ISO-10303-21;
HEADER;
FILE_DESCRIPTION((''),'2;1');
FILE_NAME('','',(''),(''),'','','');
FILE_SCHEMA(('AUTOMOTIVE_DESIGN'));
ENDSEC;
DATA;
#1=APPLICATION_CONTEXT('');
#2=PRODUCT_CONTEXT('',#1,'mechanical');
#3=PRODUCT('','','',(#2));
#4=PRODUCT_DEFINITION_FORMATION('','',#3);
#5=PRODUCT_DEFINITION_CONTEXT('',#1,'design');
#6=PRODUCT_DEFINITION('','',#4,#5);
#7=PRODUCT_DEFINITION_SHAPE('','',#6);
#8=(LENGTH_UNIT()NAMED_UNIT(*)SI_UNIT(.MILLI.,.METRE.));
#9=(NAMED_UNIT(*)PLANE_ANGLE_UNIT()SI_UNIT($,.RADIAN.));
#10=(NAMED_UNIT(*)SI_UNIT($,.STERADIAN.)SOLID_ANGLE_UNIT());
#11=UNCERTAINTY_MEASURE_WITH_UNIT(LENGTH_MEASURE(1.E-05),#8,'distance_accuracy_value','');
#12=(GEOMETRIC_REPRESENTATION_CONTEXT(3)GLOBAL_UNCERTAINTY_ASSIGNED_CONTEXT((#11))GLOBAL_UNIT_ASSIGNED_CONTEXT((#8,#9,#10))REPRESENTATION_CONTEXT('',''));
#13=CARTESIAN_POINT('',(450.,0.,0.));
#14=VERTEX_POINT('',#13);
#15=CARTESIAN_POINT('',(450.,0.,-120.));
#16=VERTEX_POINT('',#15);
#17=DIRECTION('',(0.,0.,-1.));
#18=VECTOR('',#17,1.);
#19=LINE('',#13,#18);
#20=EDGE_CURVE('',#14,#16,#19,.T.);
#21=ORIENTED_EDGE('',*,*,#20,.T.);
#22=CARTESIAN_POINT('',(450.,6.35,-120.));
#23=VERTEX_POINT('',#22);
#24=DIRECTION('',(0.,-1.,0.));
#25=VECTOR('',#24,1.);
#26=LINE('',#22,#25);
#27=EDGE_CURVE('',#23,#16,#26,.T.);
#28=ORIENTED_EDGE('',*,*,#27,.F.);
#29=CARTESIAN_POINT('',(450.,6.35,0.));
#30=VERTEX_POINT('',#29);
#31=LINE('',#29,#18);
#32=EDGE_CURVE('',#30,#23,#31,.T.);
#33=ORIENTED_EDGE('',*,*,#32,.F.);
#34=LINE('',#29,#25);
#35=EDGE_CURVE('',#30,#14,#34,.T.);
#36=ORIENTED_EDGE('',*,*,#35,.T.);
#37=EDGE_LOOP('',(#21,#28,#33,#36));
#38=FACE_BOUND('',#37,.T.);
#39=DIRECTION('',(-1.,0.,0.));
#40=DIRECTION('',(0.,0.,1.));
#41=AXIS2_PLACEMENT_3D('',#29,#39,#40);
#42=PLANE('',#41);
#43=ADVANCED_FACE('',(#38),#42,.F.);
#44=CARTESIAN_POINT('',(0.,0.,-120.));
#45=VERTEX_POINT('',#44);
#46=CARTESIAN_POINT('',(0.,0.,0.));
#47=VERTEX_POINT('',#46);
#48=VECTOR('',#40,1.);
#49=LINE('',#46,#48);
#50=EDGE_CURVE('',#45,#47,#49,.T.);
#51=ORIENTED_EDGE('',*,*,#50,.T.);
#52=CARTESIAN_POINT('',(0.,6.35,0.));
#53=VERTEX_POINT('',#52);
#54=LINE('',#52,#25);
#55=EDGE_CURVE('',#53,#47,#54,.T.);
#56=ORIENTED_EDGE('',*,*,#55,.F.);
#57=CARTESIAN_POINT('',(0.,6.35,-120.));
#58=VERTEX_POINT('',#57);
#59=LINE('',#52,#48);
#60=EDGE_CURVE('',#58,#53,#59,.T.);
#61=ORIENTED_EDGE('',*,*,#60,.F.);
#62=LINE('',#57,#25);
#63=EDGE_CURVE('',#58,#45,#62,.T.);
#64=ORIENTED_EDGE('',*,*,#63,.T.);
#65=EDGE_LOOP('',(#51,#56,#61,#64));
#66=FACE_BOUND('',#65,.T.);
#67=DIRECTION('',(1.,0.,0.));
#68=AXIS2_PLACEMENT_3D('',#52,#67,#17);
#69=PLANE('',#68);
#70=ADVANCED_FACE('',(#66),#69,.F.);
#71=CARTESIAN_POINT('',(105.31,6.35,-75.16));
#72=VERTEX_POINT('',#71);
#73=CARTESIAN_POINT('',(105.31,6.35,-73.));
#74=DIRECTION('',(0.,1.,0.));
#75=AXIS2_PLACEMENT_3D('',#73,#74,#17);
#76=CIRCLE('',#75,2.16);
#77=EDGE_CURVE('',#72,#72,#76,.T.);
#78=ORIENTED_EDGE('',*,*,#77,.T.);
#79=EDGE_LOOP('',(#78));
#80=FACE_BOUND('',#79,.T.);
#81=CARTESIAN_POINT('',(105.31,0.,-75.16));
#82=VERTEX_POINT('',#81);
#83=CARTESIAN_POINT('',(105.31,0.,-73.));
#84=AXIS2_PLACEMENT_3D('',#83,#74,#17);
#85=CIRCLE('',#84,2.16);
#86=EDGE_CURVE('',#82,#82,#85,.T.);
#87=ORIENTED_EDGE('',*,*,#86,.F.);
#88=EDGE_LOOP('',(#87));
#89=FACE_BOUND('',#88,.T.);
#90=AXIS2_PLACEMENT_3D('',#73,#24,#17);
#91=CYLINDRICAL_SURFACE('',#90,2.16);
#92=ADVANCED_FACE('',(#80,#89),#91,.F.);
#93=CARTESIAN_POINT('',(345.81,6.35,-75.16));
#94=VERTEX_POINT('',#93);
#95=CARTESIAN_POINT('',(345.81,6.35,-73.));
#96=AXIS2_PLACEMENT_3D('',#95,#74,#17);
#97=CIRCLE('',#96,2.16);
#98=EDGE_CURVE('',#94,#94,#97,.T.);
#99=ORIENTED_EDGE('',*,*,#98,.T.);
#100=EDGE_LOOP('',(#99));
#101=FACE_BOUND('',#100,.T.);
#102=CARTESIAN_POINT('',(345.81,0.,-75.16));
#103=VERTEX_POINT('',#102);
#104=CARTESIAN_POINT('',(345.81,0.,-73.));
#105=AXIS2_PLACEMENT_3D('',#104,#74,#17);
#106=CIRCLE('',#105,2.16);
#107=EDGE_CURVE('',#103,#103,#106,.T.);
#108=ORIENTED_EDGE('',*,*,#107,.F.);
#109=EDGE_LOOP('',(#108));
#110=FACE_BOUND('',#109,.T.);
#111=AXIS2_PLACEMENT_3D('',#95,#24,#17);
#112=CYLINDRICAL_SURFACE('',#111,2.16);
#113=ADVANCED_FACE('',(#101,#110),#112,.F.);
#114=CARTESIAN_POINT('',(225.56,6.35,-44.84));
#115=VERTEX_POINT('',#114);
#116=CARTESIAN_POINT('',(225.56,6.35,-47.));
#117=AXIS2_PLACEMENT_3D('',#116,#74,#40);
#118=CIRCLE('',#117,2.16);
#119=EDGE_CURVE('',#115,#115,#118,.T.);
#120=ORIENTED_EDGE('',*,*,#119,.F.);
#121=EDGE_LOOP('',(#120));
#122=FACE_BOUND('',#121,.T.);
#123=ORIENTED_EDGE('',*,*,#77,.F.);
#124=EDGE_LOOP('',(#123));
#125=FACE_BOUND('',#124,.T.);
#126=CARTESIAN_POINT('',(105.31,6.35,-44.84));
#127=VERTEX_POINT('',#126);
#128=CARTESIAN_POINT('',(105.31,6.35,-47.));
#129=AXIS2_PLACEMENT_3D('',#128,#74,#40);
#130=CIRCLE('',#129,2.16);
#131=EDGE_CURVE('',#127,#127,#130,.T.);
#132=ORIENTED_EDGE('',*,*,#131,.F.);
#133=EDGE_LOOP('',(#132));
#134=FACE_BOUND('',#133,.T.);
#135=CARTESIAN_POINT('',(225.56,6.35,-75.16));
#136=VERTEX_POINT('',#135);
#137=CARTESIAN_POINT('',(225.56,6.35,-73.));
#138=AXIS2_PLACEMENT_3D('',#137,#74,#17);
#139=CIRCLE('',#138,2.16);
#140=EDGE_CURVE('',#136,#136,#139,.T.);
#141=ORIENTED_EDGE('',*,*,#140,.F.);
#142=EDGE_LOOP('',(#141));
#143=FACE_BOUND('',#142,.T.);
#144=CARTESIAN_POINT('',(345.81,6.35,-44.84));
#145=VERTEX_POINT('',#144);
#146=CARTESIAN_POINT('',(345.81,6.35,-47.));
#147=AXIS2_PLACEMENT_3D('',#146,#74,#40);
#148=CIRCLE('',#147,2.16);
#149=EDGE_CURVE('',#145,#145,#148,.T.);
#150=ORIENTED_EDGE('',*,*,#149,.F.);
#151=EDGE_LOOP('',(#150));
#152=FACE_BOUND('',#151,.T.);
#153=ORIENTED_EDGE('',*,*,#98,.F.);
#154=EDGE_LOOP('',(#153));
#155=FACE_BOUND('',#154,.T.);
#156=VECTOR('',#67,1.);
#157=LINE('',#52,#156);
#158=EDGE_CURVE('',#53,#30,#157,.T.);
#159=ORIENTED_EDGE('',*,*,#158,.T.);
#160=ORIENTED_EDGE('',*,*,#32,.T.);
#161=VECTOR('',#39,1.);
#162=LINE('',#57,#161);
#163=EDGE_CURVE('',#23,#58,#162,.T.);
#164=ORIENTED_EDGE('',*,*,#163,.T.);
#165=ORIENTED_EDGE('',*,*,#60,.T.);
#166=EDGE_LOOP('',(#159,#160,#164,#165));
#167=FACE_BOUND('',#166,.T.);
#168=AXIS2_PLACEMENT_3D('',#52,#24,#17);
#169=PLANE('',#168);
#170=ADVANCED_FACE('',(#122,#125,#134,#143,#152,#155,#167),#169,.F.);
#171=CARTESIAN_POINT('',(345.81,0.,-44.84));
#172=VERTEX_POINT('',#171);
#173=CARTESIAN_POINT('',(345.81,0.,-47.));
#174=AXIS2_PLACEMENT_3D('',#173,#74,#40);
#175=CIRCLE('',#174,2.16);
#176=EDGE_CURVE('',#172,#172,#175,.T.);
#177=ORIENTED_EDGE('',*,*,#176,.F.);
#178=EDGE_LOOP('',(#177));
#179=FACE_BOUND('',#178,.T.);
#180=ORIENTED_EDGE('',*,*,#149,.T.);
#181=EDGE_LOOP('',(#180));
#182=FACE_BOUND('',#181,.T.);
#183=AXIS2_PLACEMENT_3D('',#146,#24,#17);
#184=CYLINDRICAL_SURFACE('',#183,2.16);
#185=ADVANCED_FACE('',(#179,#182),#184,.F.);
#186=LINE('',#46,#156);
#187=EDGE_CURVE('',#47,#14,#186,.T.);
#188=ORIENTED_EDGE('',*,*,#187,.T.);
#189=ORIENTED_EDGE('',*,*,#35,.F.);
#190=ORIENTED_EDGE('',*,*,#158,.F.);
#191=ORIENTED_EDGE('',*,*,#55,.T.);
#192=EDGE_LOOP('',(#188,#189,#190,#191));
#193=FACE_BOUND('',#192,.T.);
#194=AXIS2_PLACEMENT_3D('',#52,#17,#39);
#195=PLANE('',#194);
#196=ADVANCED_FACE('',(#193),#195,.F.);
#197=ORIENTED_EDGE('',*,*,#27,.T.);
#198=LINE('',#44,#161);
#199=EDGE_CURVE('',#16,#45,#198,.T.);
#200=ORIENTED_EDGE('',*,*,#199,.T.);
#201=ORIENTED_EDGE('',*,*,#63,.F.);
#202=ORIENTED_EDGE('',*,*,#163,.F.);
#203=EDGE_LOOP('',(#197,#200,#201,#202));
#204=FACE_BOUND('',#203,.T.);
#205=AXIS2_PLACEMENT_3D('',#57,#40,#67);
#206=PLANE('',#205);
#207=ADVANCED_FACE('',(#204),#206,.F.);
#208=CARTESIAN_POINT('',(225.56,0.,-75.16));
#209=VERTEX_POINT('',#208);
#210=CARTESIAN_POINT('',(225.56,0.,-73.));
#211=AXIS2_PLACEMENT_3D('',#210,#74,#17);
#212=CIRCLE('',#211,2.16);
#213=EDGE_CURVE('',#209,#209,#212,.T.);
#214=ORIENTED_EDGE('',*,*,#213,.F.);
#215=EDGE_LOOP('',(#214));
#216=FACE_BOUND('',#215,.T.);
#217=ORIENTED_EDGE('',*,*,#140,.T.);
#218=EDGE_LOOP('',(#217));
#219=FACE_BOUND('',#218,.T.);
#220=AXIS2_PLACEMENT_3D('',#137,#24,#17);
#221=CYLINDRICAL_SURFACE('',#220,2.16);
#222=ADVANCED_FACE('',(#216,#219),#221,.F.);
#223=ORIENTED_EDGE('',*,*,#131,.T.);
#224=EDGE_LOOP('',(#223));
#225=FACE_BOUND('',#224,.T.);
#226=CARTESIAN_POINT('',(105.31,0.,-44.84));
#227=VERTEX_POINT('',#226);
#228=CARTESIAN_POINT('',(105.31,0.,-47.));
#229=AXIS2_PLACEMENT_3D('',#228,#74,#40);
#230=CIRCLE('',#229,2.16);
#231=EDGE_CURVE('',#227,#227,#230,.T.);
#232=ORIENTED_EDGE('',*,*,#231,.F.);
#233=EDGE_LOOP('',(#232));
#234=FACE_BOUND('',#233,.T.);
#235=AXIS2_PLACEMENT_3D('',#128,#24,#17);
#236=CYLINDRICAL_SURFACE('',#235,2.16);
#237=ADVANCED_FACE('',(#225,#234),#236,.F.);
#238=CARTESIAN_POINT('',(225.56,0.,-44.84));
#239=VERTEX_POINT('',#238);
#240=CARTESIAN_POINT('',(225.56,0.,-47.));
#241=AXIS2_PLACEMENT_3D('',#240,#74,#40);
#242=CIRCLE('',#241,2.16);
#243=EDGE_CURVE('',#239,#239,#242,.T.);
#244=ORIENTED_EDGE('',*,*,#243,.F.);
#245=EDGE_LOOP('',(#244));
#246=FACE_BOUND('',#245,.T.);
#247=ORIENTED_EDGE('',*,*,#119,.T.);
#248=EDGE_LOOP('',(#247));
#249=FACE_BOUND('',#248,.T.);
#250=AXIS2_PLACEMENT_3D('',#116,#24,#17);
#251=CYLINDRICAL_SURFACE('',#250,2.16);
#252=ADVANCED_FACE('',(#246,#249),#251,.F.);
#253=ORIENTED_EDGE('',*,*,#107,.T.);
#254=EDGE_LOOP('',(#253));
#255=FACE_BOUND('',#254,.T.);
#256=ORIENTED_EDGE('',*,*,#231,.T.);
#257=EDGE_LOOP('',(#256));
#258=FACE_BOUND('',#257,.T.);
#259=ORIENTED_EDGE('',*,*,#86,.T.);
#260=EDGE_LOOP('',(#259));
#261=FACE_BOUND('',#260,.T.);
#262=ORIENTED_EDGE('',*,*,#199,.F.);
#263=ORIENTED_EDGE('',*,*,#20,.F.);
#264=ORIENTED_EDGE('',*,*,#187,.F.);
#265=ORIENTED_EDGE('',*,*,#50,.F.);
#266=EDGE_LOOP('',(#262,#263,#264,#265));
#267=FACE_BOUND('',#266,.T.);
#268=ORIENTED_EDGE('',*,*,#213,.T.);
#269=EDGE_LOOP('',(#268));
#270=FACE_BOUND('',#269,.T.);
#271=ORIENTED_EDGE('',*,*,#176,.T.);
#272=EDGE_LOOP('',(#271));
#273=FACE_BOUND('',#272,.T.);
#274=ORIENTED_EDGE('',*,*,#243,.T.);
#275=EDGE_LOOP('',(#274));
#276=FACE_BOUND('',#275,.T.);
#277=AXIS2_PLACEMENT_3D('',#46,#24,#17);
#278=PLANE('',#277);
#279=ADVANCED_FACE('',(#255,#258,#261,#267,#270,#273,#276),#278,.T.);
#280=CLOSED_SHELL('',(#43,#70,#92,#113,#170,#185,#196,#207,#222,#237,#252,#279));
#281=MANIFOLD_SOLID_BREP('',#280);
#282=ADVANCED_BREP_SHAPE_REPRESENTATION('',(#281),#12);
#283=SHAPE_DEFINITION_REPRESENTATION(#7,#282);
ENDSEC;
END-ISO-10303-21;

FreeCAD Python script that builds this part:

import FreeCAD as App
import Part
import Sketcher
Q = App.Units.Quantity

doc = App.newDocument("Part")
body = doc.addObject("PartDesign::Body", "Body")

# Sketch on XZ plane
sketch1 = doc.addObject("Sketcher::SketchObject", "Sketch")
body.addObject(sketch1)
sketch1.AttachmentSupport = (doc.XZ_Plane, [""])
sketch1.MapMode = "FlatFace"
sketch1.addGeometry([
    Part.LineSegment(App.Vector(0, -120, 0), App.Vector(0, 0, 0)),  # 0
    Part.LineSegment(App.Vector(0, 0, 0), App.Vector(450, 0, 0)),  # 1
    Part.LineSegment(App.Vector(450, 0, 0), App.Vector(450, -120, 0)),  # 2
    Part.LineSegment(App.Vector(450, -120, 0), App.Vector(0, -120, 0)),  # 3
    Part.Circle(App.Vector(105.3, -47, 0), App.Vector(0, 0, 1), 2.2),  # 4
    Part.Circle(App.Vector(225.6, -47, 0), App.Vector(0, 0, 1), 2.2),  # 5
    Part.Circle(App.Vector(345.8, -47, 0), App.Vector(0, 0, 1), 2.2),  # 6
    Part.Circle(App.Vector(105.3, -73, 0), App.Vector(0, 0, 1), 2.2),  # 7
    Part.Circle(App.Vector(225.6, -73, 0), App.Vector(0, 0, 1), 2.2),  # 8
    Part.Circle(App.Vector(345.8, -73, 0), App.Vector(0, 0, 1), 2.2),  # 9
], False)
sketch1.addConstraint([
    Sketcher.Constraint("Coincident", 0, 2, 1, 1),
    Sketcher.Constraint("Coincident", 1, 2, 2, 1),
    Sketcher.Constraint("Coincident", 2, 2, 3, 1),
    Sketcher.Constraint("Coincident", 3, 2, 0, 1),
    Sketcher.Constraint("Vertical", 0),
    Sketcher.Constraint("Horizontal", 1),
    Sketcher.Constraint("Vertical", 2),
    Sketcher.Constraint("Horizontal", 3),
    Sketcher.Constraint("Coincident", 0, 2, -1, 1),
    Sketcher.Constraint("Equal", 4, 5),
    Sketcher.Constraint("Equal", 5, 6),
    Sketcher.Constraint("Equal", 6, 7),
    Sketcher.Constraint("Equal", 7, 8),
    Sketcher.Constraint("Equal", 8, 9),
    Sketcher.Constraint("Horizontal", 4, 3, 5, 3),
    Sketcher.Constraint("Horizontal", 5, 3, 6, 3),
    Sketcher.Constraint("Horizontal", 7, 3, 8, 3),
    Sketcher.Constraint("Horizontal", 8, 3, 9, 3),
    Sketcher.Constraint("Vertical", 4, 3, 7, 3),
    Sketcher.Constraint("Vertical", 5, 3, 8, 3),
    Sketcher.Constraint("Vertical", 6, 3, 9, 3),
    Sketcher.Constraint("Diameter", 4, Q("4.32 mm")),
    Sketcher.Constraint("DistanceX", 1, 1, 1, 2, Q("450 mm")),
    Sketcher.Constraint("DistanceY", 0, 1, 0, 2, Q("120 mm")),
    Sketcher.Constraint("DistanceY", 4, 3, -1, 1, Q("47 mm")),
    Sketcher.Constraint("DistanceY", 7, 3, -1, 1, Q("73 mm")),
    Sketcher.Constraint("DistanceX", 4, 3, 6, 3, Q("240.5 mm")),
    Sketcher.Constraint("DistanceX", -1, 1, 4, 3, Q("105.31 mm")),
    Sketcher.Constraint("DistanceX", -1, 1, 5, 3, Q("225.56 mm")),
])
pad1 = doc.addObject("PartDesign::Pad", "Pad")
body.addObject(pad1)
pad1.Profile = sketch1
pad1.Length = 6.35
pad1.Reversed = True

doc.recompute()
